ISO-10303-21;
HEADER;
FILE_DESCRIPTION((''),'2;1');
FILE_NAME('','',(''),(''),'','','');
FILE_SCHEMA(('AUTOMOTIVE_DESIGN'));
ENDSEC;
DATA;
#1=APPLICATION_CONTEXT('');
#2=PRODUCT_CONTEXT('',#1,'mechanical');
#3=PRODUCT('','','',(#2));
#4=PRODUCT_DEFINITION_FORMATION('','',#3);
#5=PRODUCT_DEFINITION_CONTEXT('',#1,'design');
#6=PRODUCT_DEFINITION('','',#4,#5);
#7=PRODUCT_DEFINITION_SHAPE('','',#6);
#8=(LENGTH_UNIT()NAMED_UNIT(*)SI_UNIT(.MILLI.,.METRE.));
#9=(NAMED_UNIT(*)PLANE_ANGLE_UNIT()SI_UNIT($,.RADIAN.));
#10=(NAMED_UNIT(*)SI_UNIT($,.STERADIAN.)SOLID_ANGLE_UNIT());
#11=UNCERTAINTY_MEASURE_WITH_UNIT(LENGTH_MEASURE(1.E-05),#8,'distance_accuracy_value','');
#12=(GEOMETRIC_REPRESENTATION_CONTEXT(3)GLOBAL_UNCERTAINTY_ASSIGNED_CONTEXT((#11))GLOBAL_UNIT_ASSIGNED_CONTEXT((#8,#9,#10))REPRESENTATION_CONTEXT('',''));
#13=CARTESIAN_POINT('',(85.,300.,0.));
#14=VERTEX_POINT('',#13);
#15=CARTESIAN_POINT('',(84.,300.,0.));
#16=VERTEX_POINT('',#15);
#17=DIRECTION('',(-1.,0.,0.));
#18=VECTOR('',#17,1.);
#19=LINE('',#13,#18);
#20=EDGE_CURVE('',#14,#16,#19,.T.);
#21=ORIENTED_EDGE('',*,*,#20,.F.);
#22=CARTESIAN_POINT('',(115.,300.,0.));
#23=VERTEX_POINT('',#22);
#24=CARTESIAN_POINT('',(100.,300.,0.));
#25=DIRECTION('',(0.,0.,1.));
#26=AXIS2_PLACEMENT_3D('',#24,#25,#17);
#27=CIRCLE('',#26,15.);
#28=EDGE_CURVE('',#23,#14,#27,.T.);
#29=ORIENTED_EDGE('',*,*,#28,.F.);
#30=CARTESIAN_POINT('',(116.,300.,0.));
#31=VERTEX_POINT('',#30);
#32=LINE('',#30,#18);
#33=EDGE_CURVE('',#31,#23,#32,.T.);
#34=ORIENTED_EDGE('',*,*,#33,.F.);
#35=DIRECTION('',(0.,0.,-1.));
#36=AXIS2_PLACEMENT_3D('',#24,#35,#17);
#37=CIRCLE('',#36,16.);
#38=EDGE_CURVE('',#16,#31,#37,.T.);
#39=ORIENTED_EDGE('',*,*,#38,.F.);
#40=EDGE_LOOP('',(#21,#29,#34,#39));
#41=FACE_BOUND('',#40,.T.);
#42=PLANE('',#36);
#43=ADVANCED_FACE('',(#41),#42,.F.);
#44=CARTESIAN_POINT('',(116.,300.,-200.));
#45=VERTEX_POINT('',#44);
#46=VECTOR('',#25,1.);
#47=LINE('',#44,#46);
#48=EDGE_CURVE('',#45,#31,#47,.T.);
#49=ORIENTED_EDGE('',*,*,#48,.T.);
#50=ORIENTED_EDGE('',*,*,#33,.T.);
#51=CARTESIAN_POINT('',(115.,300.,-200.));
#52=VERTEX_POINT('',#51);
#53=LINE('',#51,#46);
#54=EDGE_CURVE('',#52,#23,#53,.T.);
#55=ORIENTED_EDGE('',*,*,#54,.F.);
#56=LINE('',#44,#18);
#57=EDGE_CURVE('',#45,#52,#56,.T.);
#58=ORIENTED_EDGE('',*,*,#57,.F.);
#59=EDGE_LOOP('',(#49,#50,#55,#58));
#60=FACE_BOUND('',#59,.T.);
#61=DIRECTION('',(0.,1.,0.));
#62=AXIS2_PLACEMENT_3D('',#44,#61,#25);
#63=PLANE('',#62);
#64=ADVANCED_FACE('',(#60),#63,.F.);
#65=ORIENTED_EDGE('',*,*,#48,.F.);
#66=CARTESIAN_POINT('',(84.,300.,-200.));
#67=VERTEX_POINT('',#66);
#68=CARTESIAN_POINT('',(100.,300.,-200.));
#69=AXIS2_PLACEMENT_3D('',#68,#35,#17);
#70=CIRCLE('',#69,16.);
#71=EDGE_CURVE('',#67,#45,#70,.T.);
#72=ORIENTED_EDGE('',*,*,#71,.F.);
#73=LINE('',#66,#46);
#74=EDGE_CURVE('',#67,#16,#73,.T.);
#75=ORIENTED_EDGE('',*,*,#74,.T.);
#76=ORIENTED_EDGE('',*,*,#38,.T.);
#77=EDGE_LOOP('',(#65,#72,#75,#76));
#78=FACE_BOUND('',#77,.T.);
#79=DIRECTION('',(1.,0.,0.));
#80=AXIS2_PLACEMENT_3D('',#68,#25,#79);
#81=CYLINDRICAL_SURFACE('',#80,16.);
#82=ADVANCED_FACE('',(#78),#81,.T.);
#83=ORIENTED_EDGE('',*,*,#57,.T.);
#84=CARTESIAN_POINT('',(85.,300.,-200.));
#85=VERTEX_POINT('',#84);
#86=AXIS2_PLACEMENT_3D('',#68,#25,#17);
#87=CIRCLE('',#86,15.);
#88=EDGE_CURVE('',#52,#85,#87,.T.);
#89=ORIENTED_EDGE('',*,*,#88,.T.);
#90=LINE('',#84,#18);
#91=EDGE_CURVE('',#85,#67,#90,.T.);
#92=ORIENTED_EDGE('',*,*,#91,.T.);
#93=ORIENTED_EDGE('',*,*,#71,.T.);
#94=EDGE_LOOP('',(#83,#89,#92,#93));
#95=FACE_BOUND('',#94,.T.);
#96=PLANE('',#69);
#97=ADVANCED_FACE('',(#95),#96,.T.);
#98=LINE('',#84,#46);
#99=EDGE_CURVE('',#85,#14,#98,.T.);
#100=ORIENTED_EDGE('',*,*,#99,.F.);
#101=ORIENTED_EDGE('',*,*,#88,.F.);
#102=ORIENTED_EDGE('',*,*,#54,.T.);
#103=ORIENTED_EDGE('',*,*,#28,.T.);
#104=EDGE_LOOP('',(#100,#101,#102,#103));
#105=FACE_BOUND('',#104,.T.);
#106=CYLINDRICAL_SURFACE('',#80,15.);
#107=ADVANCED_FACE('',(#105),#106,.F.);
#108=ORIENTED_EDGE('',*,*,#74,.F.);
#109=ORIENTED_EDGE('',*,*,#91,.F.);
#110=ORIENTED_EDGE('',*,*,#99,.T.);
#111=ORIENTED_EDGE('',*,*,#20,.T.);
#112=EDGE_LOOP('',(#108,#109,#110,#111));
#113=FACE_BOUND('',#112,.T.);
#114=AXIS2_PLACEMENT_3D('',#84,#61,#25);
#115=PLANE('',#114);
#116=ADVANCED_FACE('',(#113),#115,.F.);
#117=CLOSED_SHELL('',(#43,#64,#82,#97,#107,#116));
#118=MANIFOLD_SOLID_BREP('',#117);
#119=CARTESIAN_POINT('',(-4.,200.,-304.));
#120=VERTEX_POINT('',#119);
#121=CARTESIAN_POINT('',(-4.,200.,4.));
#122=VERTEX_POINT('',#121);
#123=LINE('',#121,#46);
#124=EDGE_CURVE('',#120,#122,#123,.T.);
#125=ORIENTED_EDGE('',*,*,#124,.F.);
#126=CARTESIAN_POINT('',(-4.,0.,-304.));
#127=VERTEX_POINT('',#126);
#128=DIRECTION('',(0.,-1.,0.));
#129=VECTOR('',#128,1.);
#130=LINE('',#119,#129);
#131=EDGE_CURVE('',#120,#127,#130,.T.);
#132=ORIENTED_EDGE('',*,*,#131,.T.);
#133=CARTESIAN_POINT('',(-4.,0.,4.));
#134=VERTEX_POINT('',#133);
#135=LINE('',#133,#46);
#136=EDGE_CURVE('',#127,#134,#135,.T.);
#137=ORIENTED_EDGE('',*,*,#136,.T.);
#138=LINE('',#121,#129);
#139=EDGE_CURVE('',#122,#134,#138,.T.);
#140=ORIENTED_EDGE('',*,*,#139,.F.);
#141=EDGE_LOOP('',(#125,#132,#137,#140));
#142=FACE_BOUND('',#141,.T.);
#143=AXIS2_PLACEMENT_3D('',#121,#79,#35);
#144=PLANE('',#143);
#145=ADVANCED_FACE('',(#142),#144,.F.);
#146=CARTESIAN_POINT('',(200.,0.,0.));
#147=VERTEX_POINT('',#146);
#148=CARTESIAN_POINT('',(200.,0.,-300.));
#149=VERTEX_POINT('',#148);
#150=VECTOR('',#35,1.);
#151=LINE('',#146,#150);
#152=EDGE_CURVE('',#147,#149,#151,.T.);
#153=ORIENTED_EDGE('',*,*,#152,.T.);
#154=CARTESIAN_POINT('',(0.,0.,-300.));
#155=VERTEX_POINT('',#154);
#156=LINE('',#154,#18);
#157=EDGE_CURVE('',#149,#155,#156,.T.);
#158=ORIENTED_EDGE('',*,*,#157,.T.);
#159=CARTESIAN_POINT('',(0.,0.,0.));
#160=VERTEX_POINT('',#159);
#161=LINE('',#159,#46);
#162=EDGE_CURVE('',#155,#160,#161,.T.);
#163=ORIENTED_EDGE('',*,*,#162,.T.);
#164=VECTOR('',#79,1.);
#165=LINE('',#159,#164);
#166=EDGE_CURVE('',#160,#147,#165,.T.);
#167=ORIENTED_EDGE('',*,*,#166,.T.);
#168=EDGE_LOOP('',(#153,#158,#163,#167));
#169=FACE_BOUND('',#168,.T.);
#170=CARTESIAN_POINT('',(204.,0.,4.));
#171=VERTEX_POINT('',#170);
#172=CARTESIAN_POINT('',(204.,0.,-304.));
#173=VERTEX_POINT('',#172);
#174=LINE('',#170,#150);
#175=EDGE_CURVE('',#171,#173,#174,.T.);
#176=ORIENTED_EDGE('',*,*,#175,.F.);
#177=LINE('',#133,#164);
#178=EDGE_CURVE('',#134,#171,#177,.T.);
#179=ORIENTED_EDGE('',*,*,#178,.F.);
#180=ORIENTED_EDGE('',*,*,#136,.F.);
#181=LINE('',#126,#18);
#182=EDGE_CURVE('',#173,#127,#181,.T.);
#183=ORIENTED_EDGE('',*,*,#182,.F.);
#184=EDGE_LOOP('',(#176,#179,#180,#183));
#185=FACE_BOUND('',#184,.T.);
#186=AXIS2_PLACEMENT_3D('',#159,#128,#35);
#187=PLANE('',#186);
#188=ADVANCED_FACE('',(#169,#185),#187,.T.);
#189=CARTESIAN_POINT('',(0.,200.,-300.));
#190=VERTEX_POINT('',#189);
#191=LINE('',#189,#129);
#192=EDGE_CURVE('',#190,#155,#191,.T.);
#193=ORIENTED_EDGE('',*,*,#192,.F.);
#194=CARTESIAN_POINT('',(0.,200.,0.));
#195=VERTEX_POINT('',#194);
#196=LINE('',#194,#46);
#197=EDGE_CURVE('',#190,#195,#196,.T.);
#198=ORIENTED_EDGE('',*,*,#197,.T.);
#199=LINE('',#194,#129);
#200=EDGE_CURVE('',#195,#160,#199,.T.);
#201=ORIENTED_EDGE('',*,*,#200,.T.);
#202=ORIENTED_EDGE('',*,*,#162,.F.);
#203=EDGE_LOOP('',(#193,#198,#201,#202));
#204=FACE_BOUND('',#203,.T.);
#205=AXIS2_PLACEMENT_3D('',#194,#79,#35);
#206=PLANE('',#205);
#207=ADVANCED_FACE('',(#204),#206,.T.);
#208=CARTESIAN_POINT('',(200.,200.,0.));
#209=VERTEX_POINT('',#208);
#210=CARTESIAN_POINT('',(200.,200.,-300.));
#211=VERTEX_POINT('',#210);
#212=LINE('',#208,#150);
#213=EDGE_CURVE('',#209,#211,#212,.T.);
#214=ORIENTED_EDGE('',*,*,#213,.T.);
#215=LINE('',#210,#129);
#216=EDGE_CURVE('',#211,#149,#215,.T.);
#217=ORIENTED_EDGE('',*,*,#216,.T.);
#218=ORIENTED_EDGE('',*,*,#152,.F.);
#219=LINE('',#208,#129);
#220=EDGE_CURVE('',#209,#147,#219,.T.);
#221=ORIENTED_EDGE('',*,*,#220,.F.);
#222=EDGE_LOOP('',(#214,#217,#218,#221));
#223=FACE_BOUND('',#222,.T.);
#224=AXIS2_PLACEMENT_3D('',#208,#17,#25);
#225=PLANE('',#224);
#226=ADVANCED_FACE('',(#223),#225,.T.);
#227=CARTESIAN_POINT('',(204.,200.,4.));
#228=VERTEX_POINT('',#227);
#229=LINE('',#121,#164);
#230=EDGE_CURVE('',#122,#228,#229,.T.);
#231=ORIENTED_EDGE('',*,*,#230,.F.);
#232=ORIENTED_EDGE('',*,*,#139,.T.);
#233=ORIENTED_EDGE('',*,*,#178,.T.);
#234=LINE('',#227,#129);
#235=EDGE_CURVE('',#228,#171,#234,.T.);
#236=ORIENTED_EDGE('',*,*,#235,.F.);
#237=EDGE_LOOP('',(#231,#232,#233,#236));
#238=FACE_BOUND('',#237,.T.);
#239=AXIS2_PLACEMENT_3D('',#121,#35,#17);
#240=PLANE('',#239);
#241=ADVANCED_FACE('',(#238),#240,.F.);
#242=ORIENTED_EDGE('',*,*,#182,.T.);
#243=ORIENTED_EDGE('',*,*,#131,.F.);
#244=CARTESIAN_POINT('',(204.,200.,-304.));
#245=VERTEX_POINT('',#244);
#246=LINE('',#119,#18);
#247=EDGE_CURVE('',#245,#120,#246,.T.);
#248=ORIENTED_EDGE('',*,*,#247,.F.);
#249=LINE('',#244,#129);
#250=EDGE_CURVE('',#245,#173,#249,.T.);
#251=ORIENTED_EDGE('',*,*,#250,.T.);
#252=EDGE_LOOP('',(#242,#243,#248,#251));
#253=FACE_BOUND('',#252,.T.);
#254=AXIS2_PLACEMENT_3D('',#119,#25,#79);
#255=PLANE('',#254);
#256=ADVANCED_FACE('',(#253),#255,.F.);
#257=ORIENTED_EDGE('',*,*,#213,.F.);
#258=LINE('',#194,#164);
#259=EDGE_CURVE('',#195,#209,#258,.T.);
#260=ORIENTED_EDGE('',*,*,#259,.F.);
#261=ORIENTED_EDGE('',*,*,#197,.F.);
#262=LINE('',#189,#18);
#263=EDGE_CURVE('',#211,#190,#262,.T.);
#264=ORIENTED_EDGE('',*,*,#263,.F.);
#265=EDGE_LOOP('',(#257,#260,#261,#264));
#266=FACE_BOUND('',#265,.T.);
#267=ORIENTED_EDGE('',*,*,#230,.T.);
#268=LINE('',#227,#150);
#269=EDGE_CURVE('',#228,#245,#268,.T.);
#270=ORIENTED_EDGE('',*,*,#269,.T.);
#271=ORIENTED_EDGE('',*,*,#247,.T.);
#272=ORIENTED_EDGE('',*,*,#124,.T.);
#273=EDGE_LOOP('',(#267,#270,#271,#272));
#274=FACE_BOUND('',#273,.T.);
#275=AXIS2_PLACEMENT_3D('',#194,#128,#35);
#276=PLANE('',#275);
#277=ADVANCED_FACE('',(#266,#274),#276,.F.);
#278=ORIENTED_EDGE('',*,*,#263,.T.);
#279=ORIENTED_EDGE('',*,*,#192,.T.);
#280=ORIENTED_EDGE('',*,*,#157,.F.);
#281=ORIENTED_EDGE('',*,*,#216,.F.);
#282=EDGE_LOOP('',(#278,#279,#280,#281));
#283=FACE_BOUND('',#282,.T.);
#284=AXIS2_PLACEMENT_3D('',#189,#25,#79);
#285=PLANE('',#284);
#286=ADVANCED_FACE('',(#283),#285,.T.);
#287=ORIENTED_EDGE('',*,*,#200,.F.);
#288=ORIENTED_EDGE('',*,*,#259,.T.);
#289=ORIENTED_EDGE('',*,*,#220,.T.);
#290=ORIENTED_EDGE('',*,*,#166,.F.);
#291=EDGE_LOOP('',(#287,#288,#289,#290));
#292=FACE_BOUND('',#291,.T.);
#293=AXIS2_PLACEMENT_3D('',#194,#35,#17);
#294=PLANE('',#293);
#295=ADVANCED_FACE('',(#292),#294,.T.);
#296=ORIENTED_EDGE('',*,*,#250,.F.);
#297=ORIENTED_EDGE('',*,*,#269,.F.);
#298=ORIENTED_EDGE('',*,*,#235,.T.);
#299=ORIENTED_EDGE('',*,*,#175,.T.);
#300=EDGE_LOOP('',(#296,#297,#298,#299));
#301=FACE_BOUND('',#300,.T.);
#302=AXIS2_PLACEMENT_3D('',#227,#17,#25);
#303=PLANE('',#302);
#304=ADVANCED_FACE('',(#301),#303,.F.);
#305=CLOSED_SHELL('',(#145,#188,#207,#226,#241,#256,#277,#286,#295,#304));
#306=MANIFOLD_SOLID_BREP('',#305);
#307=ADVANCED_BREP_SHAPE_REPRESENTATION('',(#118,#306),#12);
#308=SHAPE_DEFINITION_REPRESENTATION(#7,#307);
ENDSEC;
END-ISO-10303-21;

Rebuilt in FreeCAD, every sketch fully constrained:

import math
import FreeCAD as App
import Part
import Sketcher

V = App.Vector
Q = App.Units.Quantity

doc = App.newDocument("Part")
body = doc.addObject("PartDesign::Body", "Body")

sketch1 = doc.addObject("Sketcher::SketchObject", "Sketch")
body.addObject(sketch1)
sketch1.AttachmentSupport = (doc.XZ_Plane, [""])
sketch1.MapMode = "FlatFace"
sketch1.addGeometry([
    Part.LineSegment(V(-4, -304, 0), V(-4, 4, 0)),
    Part.LineSegment(V(-4, 4, 0), V(204, 4, 0)),
    Part.LineSegment(V(204, 4, 0), V(204, -304, 0)),
    Part.LineSegment(V(204, -304, 0), V(-4, -304, 0)),
    Part.LineSegment(V(200, 0, 0), V(0, 0, 0)),
    Part.LineSegment(V(0, 0, 0), V(0, -300, 0)),
    Part.LineSegment(V(0, -300, 0), V(200, -300, 0)),
    Part.LineSegment(V(200, -300, 0), V(200, 0, 0)),
], False)
sketch1.addConstraint([
    Sketcher.Constraint("Coincident", 0, 2, 1, 1),
    Sketcher.Constraint("Coincident", 1, 2, 2, 1),
    Sketcher.Constraint("Coincident", 2, 2, 3, 1),
    Sketcher.Constraint("Coincident", 3, 2, 0, 1),
    Sketcher.Constraint("Coincident", 4, 2, 5, 1),
    Sketcher.Constraint("Coincident", 5, 2, 6, 1),
    Sketcher.Constraint("Coincident", 6, 2, 7, 1),
    Sketcher.Constraint("Coincident", 7, 2, 4, 1),
    Sketcher.Constraint("Vertical", 0),
    Sketcher.Constraint("Horizontal", 1),
    Sketcher.Constraint("Vertical", 2),
    Sketcher.Constraint("Horizontal", 3),
    Sketcher.Constraint("Horizontal", 4),
    Sketcher.Constraint("Vertical", 5),
    Sketcher.Constraint("Horizontal", 6),
    Sketcher.Constraint("Vertical", 7),
    Sketcher.Constraint("Coincident", 4, 2, -1, 1),
    Sketcher.Constraint("DistanceX", 1, 1, 1, 2, Q("208 mm")),
    Sketcher.Constraint("DistanceX", 4, 2, 4, 1, Q("200 mm")),
    Sketcher.Constraint("DistanceY", 0, 1, 0, 2, Q("308 mm")),
    Sketcher.Constraint("DistanceY", 5, 2, 5, 1, Q("300 mm")),
    Sketcher.Constraint("DistanceX", 0, 2, -1, 1, Q("4 mm")),
    Sketcher.Constraint("DistanceY", -1, 1, 0, 2, Q("4 mm")),
])
pad1 = doc.addObject("PartDesign::Pad", "Pad")
body.addObject(pad1)
pad1.Profile = sketch1
pad1.Length = 200
pad1.Reversed = True
body2 = doc.addObject("PartDesign::Body", "Body001")

sketch2 = doc.addObject("Sketcher::SketchObject", "Sketch001")
body2.addObject(sketch2)
sketch2.AttachmentSupport = (doc.getObject("XY_Plane001"), [""])
sketch2.MapMode = "FlatFace"
sketch2.addGeometry([
    Part.LineSegment(V(116, 300, 0), V(115, 300, 0)),
    Part.ArcOfCircle(Part.Circle(V(100, 300, 0), V(0, 0, 1), 15), math.radians(0), math.radians(180)),
    Part.LineSegment(V(85, 300, 0), V(84, 300, 0)),
    Part.ArcOfCircle(Part.Circle(V(100, 300, 0), V(0, 0, 1), 16), math.radians(0), math.radians(180)),
], False)
sketch2.addConstraint([
    Sketcher.Constraint("Coincident", 0, 2, 1, 1),
    Sketcher.Constraint("Coincident", 1, 2, 2, 1),
    Sketcher.Constraint("Coincident", 2, 2, 3, 2),
    Sketcher.Constraint("Coincident", 3, 1, 0, 1),
    Sketcher.Constraint("Horizontal", 0),
    Sketcher.Constraint("Horizontal", 2),
    Sketcher.Constraint("Coincident", 3, 3, 1, 3),
    Sketcher.Constraint("Horizontal", 3, 3, 0, 2),
    Sketcher.Constraint("Horizontal", 0, 2, 1, 2),
    Sketcher.Constraint("Radius", 1, Q("15 mm")),
    Sketcher.Constraint("Radius", 3, Q("16 mm")),
    Sketcher.Constraint("DistanceX", -1, 1, 1, 3, Q("100 mm")),
    Sketcher.Constraint("DistanceY", -1, 1, 1, 3, Q("300 mm")),
])
pad2 = doc.addObject("PartDesign::Pad", "Pad001")
body2.addObject(pad2)
pad2.Profile = sketch2
pad2.Length = 200
pad2.Reversed = True

doc.recompute()
